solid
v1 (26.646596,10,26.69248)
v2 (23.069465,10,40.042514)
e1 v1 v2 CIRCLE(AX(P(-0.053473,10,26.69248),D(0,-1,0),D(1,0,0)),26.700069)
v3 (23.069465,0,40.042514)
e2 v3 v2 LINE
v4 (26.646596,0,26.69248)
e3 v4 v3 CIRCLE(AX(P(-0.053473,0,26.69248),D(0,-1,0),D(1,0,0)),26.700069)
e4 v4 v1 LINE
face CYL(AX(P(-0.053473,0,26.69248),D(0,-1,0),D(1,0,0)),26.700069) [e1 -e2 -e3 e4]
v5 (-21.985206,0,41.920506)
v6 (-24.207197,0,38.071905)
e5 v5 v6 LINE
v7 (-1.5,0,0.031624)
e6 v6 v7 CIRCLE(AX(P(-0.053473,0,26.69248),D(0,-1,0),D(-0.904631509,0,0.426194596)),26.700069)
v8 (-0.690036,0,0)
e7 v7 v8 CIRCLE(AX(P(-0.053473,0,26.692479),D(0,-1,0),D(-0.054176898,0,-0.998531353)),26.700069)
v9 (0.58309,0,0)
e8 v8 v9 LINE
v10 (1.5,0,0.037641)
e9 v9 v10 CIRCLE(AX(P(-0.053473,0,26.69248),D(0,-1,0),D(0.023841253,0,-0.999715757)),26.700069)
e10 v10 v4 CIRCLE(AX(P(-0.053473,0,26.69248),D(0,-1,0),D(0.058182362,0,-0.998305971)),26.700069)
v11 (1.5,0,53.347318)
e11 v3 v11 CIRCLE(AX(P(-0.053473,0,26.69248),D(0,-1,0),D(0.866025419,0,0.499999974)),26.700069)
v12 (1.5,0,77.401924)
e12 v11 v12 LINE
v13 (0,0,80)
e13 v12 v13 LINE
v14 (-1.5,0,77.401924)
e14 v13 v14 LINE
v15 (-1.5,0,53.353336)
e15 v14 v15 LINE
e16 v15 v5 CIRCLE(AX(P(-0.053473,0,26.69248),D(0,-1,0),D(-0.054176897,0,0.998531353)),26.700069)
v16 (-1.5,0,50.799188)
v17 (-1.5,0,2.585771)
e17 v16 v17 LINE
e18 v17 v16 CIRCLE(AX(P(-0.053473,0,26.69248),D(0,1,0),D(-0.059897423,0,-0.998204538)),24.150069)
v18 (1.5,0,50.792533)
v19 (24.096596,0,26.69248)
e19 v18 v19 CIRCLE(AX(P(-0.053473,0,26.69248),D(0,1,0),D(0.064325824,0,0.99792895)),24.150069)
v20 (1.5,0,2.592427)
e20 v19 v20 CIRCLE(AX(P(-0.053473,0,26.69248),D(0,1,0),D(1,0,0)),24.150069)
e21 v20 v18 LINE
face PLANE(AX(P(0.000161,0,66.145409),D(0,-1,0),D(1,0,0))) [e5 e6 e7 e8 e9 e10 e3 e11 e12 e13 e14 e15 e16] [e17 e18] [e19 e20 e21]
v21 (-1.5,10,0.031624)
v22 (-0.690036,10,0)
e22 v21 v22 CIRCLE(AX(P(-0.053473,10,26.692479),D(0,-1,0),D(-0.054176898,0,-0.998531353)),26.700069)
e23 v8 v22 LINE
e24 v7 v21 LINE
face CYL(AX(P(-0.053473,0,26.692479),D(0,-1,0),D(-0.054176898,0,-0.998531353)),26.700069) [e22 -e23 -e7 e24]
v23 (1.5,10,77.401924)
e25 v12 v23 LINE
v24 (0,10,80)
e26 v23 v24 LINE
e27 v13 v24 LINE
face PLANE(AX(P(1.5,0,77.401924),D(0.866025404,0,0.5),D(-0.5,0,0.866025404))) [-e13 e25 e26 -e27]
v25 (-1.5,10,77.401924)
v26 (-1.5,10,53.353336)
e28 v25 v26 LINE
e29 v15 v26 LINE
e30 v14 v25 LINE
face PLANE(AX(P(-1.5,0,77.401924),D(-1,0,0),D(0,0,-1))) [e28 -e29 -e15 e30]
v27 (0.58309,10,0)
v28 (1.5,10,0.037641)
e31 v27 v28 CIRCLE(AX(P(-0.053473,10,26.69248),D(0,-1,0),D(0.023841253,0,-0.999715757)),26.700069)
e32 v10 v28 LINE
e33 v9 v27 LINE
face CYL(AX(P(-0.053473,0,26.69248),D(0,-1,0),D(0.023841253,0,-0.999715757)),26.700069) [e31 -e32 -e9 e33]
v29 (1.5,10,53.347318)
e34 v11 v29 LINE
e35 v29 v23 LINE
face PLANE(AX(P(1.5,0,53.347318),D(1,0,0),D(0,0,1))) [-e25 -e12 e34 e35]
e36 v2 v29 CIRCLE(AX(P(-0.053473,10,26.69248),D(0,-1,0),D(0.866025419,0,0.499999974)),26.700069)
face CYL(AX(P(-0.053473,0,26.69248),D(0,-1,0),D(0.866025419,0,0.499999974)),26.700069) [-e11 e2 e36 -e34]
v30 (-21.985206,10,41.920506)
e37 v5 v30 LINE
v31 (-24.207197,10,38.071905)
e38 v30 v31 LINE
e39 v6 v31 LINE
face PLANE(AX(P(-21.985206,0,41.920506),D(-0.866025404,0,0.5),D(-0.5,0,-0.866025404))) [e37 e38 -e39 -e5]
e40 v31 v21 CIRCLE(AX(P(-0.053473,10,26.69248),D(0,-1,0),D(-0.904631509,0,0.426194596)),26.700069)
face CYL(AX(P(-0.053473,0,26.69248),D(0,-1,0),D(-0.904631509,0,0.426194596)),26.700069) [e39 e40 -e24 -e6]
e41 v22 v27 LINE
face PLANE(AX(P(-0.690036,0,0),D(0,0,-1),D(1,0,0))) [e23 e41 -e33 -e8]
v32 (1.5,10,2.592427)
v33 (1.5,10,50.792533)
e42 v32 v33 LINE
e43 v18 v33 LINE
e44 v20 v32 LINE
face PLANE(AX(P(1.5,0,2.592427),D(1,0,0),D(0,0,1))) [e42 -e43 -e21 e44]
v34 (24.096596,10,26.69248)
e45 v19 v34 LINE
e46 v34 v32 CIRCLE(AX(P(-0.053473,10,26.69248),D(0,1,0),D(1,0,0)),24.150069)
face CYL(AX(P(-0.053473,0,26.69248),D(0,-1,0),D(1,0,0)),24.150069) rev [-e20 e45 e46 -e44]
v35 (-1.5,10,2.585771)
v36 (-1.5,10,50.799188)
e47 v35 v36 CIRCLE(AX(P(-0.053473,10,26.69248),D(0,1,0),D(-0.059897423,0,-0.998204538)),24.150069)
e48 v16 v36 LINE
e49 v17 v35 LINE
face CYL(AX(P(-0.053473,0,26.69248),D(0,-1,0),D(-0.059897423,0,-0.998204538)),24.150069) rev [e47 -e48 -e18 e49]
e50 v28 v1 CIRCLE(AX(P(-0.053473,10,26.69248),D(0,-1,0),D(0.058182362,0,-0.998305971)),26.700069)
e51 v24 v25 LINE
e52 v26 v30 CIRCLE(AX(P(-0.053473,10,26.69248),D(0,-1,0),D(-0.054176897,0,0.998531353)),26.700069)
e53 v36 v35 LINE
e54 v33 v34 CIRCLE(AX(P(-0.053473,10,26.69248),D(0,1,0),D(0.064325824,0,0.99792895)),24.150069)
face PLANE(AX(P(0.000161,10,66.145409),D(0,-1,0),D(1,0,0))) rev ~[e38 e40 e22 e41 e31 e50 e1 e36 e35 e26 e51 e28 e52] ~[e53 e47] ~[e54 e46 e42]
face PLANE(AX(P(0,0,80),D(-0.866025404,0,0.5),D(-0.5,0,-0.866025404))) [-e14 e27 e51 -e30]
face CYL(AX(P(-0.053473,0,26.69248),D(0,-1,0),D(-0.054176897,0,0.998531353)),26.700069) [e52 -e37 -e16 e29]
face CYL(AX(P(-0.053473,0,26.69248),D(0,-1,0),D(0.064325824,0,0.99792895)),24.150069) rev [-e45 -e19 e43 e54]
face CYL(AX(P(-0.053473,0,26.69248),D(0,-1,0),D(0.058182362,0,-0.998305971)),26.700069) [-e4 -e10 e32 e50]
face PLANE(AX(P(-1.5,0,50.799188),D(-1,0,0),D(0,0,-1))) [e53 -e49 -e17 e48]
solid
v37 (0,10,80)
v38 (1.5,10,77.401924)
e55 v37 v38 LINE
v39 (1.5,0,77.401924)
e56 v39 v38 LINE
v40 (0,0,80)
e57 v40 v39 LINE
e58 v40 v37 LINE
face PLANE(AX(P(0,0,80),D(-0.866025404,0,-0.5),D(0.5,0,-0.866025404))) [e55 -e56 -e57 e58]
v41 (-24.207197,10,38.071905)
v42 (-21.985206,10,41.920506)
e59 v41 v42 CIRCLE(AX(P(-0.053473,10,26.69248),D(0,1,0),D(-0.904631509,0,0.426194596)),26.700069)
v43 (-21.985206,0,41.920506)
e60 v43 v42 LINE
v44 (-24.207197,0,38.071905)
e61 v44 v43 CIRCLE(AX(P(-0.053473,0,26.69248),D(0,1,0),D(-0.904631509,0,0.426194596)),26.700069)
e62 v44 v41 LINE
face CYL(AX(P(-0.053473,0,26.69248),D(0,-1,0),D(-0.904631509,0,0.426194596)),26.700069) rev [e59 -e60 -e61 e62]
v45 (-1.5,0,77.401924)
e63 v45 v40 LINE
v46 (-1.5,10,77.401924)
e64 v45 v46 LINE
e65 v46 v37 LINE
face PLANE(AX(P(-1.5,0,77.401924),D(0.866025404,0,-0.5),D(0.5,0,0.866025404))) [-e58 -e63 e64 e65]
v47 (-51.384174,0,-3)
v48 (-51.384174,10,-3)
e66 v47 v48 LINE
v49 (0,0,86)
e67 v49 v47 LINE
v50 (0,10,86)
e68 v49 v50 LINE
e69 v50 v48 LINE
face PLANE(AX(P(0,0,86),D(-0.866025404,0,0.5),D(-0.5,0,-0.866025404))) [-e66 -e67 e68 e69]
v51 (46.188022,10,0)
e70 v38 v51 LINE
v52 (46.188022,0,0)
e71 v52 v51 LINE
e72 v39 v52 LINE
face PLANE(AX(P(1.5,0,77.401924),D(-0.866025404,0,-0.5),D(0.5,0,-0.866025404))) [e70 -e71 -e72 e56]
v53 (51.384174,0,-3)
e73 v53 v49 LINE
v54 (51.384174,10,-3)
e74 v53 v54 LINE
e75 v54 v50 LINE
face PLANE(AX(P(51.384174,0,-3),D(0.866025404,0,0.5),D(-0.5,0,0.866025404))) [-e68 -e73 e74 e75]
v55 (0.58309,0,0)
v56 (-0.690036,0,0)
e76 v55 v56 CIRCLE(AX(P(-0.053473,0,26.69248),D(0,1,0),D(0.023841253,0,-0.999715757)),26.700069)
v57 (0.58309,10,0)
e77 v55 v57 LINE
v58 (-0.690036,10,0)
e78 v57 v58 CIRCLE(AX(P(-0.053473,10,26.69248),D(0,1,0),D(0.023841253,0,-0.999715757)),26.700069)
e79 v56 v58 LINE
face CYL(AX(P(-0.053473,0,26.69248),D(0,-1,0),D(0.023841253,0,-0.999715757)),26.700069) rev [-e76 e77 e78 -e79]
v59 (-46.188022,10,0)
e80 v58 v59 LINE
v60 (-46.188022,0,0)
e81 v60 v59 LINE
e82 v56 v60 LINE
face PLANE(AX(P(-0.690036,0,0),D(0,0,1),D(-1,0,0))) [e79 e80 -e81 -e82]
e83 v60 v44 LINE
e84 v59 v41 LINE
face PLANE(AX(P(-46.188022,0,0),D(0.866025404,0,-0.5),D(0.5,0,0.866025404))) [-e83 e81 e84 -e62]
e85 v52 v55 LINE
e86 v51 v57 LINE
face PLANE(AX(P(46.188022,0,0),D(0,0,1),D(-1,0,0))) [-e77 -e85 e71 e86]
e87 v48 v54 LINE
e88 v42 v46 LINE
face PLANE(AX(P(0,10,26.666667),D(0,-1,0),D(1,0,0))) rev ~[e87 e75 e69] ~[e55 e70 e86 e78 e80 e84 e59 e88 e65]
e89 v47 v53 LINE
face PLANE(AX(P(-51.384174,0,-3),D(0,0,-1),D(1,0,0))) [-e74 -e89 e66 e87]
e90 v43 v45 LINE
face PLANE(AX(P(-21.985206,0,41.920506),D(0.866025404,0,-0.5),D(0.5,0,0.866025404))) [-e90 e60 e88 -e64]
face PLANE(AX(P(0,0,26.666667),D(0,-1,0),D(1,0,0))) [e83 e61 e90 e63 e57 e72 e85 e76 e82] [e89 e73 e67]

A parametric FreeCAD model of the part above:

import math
import FreeCAD as App
import Part
import Sketcher
from FreeCAD import Vector
Q = App.Units.Quantity


def add_polygon(sketch, points):
    """Adds a closed chain of lines whose ends are joined by coincident constraints."""
    first, n = sketch.GeometryCount, len(points)
    for a, b in zip(points, points[1:] + points[:1]):
        sketch.addGeometry(Part.LineSegment(App.Vector(*a, 0), App.Vector(*b, 0)), False)
    for i in range(n):
        sketch.addConstraint(Sketcher.Constraint("Coincident", first + i, 2, first + (i + 1) % n, 1))

doc = App.newDocument("Part")
body = doc.addObject("PartDesign::Body", "Body")

sketch1 = doc.addObject("Sketcher::SketchObject", "Sketch")
body.addObject(sketch1)
sketch1.AttachmentSupport = (doc.XZ_Plane, [""])
sketch1.MapMode = "FlatFace"
sketch1.addGeometry(Part.LineSegment(Vector(0, 80, 0), Vector(-1.5, 77.4, 0)), False)
sketch1.addGeometry(Part.LineSegment(Vector(-1.5, 77.4, 0), Vector(-1.5, 53.4, 0)), False)
sketch1.addGeometry(Part.ArcOfCircle(Part.Circle(Vector(-0.1, 26.7, 0), Vector(0, 0, 1), 26.7), math.radians(93), math.radians(145)), False)
sketch1.addGeometry(Part.LineSegment(Vector(-22, 41.9, 0), Vector(-24.2, 38.1, 0)), False)
sketch1.addGeometry(Part.ArcOfCircle(Part.Circle(Vector(-0.1, 26.7, 0), Vector(0, 0, 1), 26.7), math.radians(155), math.radians(267)), False)
sketch1.addGeometry(Part.ArcOfCircle(Part.Circle(Vector(-0.1, 26.7, 0), Vector(0, 0, 1), 26.7), math.radians(-93.11), math.radians(-91.37)), False)
sketch1.addGeometry(Part.LineSegment(Vector(-0.7, 0, 0), Vector(0.6, 0, 0)), False)
sketch1.addGeometry(Part.ArcOfCircle(Part.Circle(Vector(-0.1, 26.7, 0), Vector(0, 0, 1), 26.7), math.radians(-88.63), math.radians(-86.66)), False)
sketch1.addGeometry(Part.ArcOfCircle(Part.Circle(Vector(-0.1, 26.7, 0), Vector(0, 0, 1), 26.7), math.radians(-87), math.radians(0)), False)
sketch1.addGeometry(Part.ArcOfCircle(Part.Circle(Vector(-0.1, 26.7, 0), Vector(0, 0, 1), 26.7), math.radians(0), math.radians(30)), False)
sketch1.addGeometry(Part.ArcOfCircle(Part.Circle(Vector(-0.1, 26.7, 0), Vector(0, 0, 1), 26.7), math.radians(30), math.radians(87)), False)
sketch1.addGeometry(Part.LineSegment(Vector(1.5, 53.3, 0), Vector(1.5, 77.4, 0)), False)
sketch1.addGeometry(Part.LineSegment(Vector(1.5, 77.4, 0), Vector(0, 80, 0)), False)
sketch1.addGeometry(Part.LineSegment(Vector(-1.5, 50.8, 0), Vector(-1.5, 2.6, 0)), False)
sketch1.addGeometry(Part.ArcOfCircle(Part.Circle(Vector(-0.1, 26.7, 0), Vector(0, 0, 1), 24.2), math.radians(93), math.radians(267)), False)
sketch1.addGeometry(Part.LineSegment(Vector(1.5, 2.6, 0), Vector(1.5, 50.8, 0)), False)
sketch1.addGeometry(Part.ArcOfCircle(Part.Circle(Vector(-0.1, 26.7, 0), Vector(0, 0, 1), 24.2), math.radians(0), math.radians(86)), False)
sketch1.addGeometry(Part.ArcOfCircle(Part.Circle(Vector(-0.1, 26.7, 0), Vector(0, 0, 1), 24.2), math.radians(-86), math.radians(0)), False)
sketch1.addConstraint(Sketcher.Constraint("Coincident", 0, 2, 1, 1))
sketch1.addConstraint(Sketcher.Constraint("Coincident", 1, 2, 2, 1))
sketch1.addConstraint(Sketcher.Constraint("Coincident", 2, 2, 3, 1))
sketch1.addConstraint(Sketcher.Constraint("Coincident", 3, 2, 4, 1))
sketch1.addConstraint(Sketcher.Constraint("Tangent", 4, 2, 5, 1))
sketch1.addConstraint(Sketcher.Constraint("Coincident", 5, 2, 6, 1))
sketch1.addConstraint(Sketcher.Constraint("Coincident", 6, 2, 7, 1))
sketch1.addConstraint(Sketcher.Constraint("Tangent", 7, 2, 8, 1))
sketch1.addConstraint(Sketcher.Constraint("Tangent", 8, 2, 9, 1))
sketch1.addConstraint(Sketcher.Constraint("Tangent", 9, 2, 10, 1))
sketch1.addConstraint(Sketcher.Constraint("Coincident", 10, 2, 11, 1))
sketch1.addConstraint(Sketcher.Constraint("Coincident", 11, 2, 12, 1))
sketch1.addConstraint(Sketcher.Constraint("Coincident", 12, 2, 0, 1))
sketch1.addConstraint(Sketcher.Constraint("Coincident", 13, 1, 14, 1))
sketch1.addConstraint(Sketcher.Constraint("Coincident", 14, 2, 13, 2))
sketch1.addConstraint(Sketcher.Constraint("Coincident", 15, 2, 16, 2))
sketch1.addConstraint(Sketcher.Constraint("Tangent", 16, 1, 17, 2))
sketch1.addConstraint(Sketcher.Constraint("Coincident", 17, 1, 15, 1))
sketch1.addConstraint(Sketcher.Constraint("Vertical", 1))
sketch1.addConstraint(Sketcher.Constraint("Horizontal", 6))
sketch1.addConstraint(Sketcher.Constraint("Vertical", 11))
sketch1.addConstraint(Sketcher.Constraint("Vertical", 13))
sketch1.addConstraint(Sketcher.Constraint("Vertical", 15))
sketch1.addConstraint(Sketcher.Constraint("Coincident", 4, 3, 2, 3))
sketch1.addConstraint(Sketcher.Constraint("Coincident", 7, 3, 2, 3))
sketch1.addConstraint(Sketcher.Constraint("Coincident", 9, 3, 2, 3))
sketch1.addConstraint(Sketcher.Constraint("Coincident", 14, 3, 2, 3))
sketch1.addConstraint(Sketcher.Constraint("Coincident", 16, 3, 2, 3))
sketch1.addConstraint(Sketcher.Constraint("Equal", 2, 4))
sketch1.addConstraint(Sketcher.Constraint("Equal", 4, 5))
sketch1.addConstraint(Sketcher.Constraint("Equal", 5, 7))
sketch1.addConstraint(Sketcher.Constraint("Equal", 9, 10))
sketch1.addConstraint(Sketcher.Constraint("Equal", 14, 16))
sketch1.addConstraint(Sketcher.Constraint("Equal", 16, 17))
sketch1.addConstraint(Sketcher.Constraint("Symmetric", 0, 2, 11, 2, -2))
sketch1.addConstraint(Sketcher.Constraint("PointOnObject", 5, 2, -1))
sketch1.addConstraint(Sketcher.Constraint("PointOnObject", 12, 2, -2))
sketch1.addConstraint(Sketcher.Constraint("Parallel", 0, 3))
sketch1.addConstraint(Sketcher.Constraint("Horizontal", 17, 3, 8, 2))
sketch1.addConstraint(Sketcher.Constraint("Horizontal", 8, 2, 16, 1))
sketch1.addConstraint(Sketcher.Constraint("Vertical", 1, 2, 4, 2))
sketch1.addConstraint(Sketcher.Constraint("Vertical", 7, 2, 10, 2))
sketch1.addConstraint(Sketcher.Constraint("Vertical", 4, 2, 13, 1))
sketch1.addConstraint(Sketcher.Constraint("Vertical", 11, 2, 15, 2))
sketch1.addConstraint(Sketcher.Constraint("Angle", 0, Q("-120 deg")))
sketch1.addConstraint(Sketcher.Constraint("Distance", 0, 3.0))
sketch1.addConstraint(Sketcher.Constraint("DistanceY", -1, 1, 12, 2, 80.0))
sketch1.addConstraint(Sketcher.Constraint("Radius", 2, 26.700069))
sketch1.addConstraint(Sketcher.Constraint("Radius", 14, 24.150069))
sketch1.addConstraint(Sketcher.Constraint("DistanceY", 3, 2, 2, 2, 3.848601))
sketch1.addConstraint(Sketcher.Constraint("DistanceX", 6, 1, 6, 2, 1.273126))
sketch1.addConstraint(Sketcher.Constraint("DistanceY", 1, 2, 1, 1, 24.048588))
sketch1.addConstraint(Sketcher.Constraint("DistanceX", 9, 2, 8, 2, 3.577131))
pad1 = doc.addObject("PartDesign::Pad", "Pad")
body.addObject(pad1)
pad1.Profile = sketch1
pad1.Length = 10
pad1.Reversed = True
body2 = doc.addObject("PartDesign::Body", "Body001")

sketch2 = doc.addObject("Sketcher::SketchObject", "Sketch001")
body2.addObject(sketch2)
sketch2.AttachmentSupport = (doc.getObject("XZ_Plane001"), [""])
sketch2.MapMode = "FlatFace"
add_polygon(sketch2, [(51.4, -3), (0, 86), (-51.4, -3)])
sketch2.addGeometry(Part.LineSegment(Vector(-0.7, 0, 0), Vector(-46.2, 0, 0)), False)
sketch2.addGeometry(Part.LineSegment(Vector(-46.2, 0, 0), Vector(-24.2, 38.1, 0)), False)
sketch2.addGeometry(Part.ArcOfCircle(Part.Circle(Vector(-0.1, 26.7, 0), Vector(0, 0, 1), 26.7), math.radians(145.23), math.radians(154.77)), False)
sketch2.addGeometry(Part.LineSegment(Vector(-22, 41.9, 0), Vector(-1.5, 77.4, 0)), False)
sketch2.addGeometry(Part.LineSegment(Vector(-1.5, 77.4, 0), Vector(0, 80, 0)), False)
sketch2.addGeometry(Part.LineSegment(Vector(0, 80, 0), Vector(1.5, 77.4, 0)), False)
sketch2.addGeometry(Part.LineSegment(Vector(1.5, 77.4, 0), Vector(46.2, 0, 0)), False)
sketch2.addGeometry(Part.LineSegment(Vector(46.2, 0, 0), Vector(0.6, 0, 0)), False)
sketch2.addGeometry(Part.ArcOfCircle(Part.Circle(Vector(-0.1, 26.7, 0), Vector(0, 0, 1), 26.7), math.radians(-91.37), math.radians(-88.63)), False)
sketch2.addConstraint(Sketcher.Constraint("Coincident", 3, 2, 4, 1))
sketch2.addConstraint(Sketcher.Constraint("Coincident", 4, 2, 5, 2))
sketch2.addConstraint(Sketcher.Constraint("Coincident", 5, 1, 6, 1))
sketch2.addConstraint(Sketcher.Constraint("Coincident", 6, 2, 7, 1))
sketch2.addConstraint(Sketcher.Constraint("Coincident", 7, 2, 8, 1))
sketch2.addConstraint(Sketcher.Constraint("Coincident", 8, 2, 9, 1))
sketch2.addConstraint(Sketcher.Constraint("Coincident", 9, 2, 10, 1))
sketch2.addConstraint(Sketcher.Constraint("Coincident", 10, 2, 11, 2))
sketch2.addConstraint(Sketcher.Constraint("Coincident", 11, 1, 3, 1))
sketch2.addConstraint(Sketcher.Constraint("Horizontal", 2))
sketch2.addConstraint(Sketcher.Constraint("Horizontal", 3))
sketch2.addConstraint(Sketcher.Constraint("Horizontal", 10))
sketch2.addConstraint(Sketcher.Constraint("Coincident", 11, 3, 5, 3))
sketch2.addConstraint(Sketcher.Constraint("Equal", 5, 11))
sketch2.addConstraint(Sketcher.Constraint("Symmetric", 3, 2, 9, 2, -1, 1))
sketch2.addConstraint(Sketcher.Constraint("Symmetric", 6, 2, 8, 2, -2))
sketch2.addConstraint(Sketcher.Constraint("PointOnObject", 0, 2, -2))
sketch2.addConstraint(Sketcher.Constraint("PointOnObject", 3, 2, -1))
sketch2.addConstraint(Sketcher.Constraint("PointOnObject", 7, 2, -2))
sketch2.addConstraint(Sketcher.Constraint("Parallel", 1, 4))
sketch2.addConstraint(Sketcher.Constraint("Parallel", 4, 6))
sketch2.addConstraint(Sketcher.Constraint("Parallel", 6, 7))
sketch2.addConstraint(Sketcher.Constraint("Parallel", 0, 8))
sketch2.addConstraint(Sketcher.Constraint("Parallel", 8, 9))
sketch2.addConstraint(Sketcher.Constraint("Angle", 0, Q("120 deg")))
sketch2.addConstraint(Sketcher.Constraint("Distance", 7, 3.0))
sketch2.addConstraint(Sketcher.Constraint("DistanceY", -1, 1, 0, 2, 86.0))
sketch2.addConstraint(Sketcher.Constraint("DistanceY", 1, 2, -1, 1, 3.0))
sketch2.addConstraint(Sketcher.Constraint("DistanceY", -1, 1, 7, 2, 80.0))
sketch2.addConstraint(Sketcher.Constraint("Radius", 5, 26.700069))
sketch2.addConstraint(Sketcher.Constraint("DistanceX", 10, 2, 10, 1, 45.604932))
sketch2.addConstraint(Sketcher.Constraint("DistanceX", 1, 2, 5, 3, 51.330701))
pad2 = doc.addObject("PartDesign::Pad", "Pad001")
body2.addObject(pad2)
pad2.Profile = sketch2
pad2.Length = 10
pad2.Reversed = True

doc.recompute()
